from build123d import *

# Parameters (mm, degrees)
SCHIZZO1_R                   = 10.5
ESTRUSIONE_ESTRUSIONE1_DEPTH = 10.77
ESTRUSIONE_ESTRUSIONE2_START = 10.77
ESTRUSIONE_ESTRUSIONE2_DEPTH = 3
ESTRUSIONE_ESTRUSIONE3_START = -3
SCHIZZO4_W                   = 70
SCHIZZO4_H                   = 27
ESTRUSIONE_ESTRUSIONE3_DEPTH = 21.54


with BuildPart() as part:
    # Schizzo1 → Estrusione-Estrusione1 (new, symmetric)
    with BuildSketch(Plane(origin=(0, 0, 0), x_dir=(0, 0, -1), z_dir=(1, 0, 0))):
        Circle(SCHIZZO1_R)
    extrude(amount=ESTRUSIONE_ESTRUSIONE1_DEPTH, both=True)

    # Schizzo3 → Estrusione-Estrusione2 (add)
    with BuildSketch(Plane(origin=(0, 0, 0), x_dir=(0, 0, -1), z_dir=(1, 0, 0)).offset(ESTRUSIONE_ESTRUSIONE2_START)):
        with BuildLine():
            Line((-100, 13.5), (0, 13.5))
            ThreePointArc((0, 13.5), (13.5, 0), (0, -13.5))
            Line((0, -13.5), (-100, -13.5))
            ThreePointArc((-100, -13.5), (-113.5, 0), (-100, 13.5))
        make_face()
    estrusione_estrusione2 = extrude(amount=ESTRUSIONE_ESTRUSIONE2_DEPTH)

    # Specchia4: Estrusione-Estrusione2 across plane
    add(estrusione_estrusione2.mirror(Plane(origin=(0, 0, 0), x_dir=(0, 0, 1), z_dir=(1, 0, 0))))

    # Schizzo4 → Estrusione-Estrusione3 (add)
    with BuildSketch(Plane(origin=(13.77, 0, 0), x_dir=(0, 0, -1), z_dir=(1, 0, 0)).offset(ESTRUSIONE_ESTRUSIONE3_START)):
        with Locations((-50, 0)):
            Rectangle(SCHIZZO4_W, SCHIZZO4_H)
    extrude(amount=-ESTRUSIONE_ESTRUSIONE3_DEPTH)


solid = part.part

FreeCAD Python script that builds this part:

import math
import FreeCAD as App
import Part
import Sketcher
Q = App.Units.Quantity

doc = App.newDocument("Part")
body = doc.addObject("PartDesign::Body", "Body")

# Sketch on YZ plane
sketch1 = body.newObject("Sketcher::SketchObject", "Sketch")
sketch1.AttachmentSupport = (doc.getObject("YZ_Plane"), [""])
sketch1.MapMode = "FlatFace"
sketch1.addGeometry(Part.Circle(App.Vector(0, 0, 0), App.Vector(0, 0, 1), 10.5), False)
sketch1.addConstraint(Sketcher.Constraint("Coincident", 0, 3, -1, 1))
sketch1.addConstraint(Sketcher.Constraint("Diameter", 0, Q("21 mm")))
pad1 = body.newObject("PartDesign::Pad", "Pad")
pad1.Profile = sketch1
pad1.Length = 21.54
pad1.Midplane = True

# Sketch on YZ plane
sketch2 = body.newObject("Sketcher::SketchObject", "Sketch001")
sketch2.AttachmentSupport = (doc.getObject("YZ_Plane"), [""])
sketch2.MapMode = "FlatFace"
sketch2.AttachmentOffset = App.Placement(App.Vector(0, 0, 10.77), App.Rotation())
sketch2.addGeometry(Part.LineSegment(App.Vector(13.5, 0, 0), App.Vector(13.5, 100, 0)), False)
sketch2.addGeometry(Part.ArcOfCircle(Part.Circle(App.Vector(0, 100, 0), App.Vector(0, 0, 1), 13.5), math.radians(0), math.radians(180)), False)
sketch2.addGeometry(Part.LineSegment(App.Vector(-13.5, 100, 0), App.Vector(-13.5, 0, 0)), False)
sketch2.addGeometry(Part.ArcOfCircle(Part.Circle(App.Vector(0, 0, 0), App.Vector(0, 0, 1), 13.5), math.radians(180), math.radians(360)), False)
sketch2.addConstraint(Sketcher.Constraint("Tangent", 0, 2, 1, 1))
sketch2.addConstraint(Sketcher.Constraint("Tangent", 1, 2, 2, 1))
sketch2.addConstraint(Sketcher.Constraint("Tangent", 2, 2, 3, 1))
sketch2.addConstraint(Sketcher.Constraint("Tangent", 3, 2, 0, 1))
sketch2.addConstraint(Sketcher.Constraint("Vertical", 0))
sketch2.addConstraint(Sketcher.Constraint("Vertical", 2))
sketch2.addConstraint(Sketcher.Constraint("Coincident", 3, 3, -1, 1))
sketch2.addConstraint(Sketcher.Constraint("Radius", 1, Q("13.5 mm")))
sketch2.addConstraint(Sketcher.Constraint("DistanceY", 0, 1, 0, 2, Q("100 mm")))
pad2 = body.newObject("PartDesign::Pad", "Pad001")
pad2.Profile = sketch2
pad2.Length = 3
doc.recompute()

mirrored = body.newObject("PartDesign::Mirrored", "Mirrored")
mirrored.Originals = [pad2]
mirrored.MirrorPlane = (doc.getObject("YZ_Plane"), [""])
body.Tip = mirrored

# Sketch on YZ plane
sketch3 = body.newObject("Sketcher::SketchObject", "Sketch002")
sketch3.AttachmentSupport = (doc.getObject("YZ_Plane"), [""])
sketch3.MapMode = "FlatFace"
sketch3.AttachmentOffset = App.Placement(App.Vector(0, 0, 10.77), App.Rotation())
sketch3.addGeometry(Part.LineSegment(App.Vector(13.5, 85, 0), App.Vector(-13.5, 85, 0)), False)
sketch3.addGeometry(Part.LineSegment(App.Vector(-13.5, 85, 0), App.Vector(-13.5, 15, 0)), False)
sketch3.addGeometry(Part.LineSegment(App.Vector(-13.5, 15, 0), App.Vector(13.5, 15, 0)), False)
sketch3.addGeometry(Part.LineSegment(App.Vector(13.5, 15, 0), App.Vector(13.5, 85, 0)), False)
sketch3.addConstraint(Sketcher.Constraint("Coincident", 0, 2, 1, 1))
sketch3.addConstraint(Sketcher.Constraint("Coincident", 1, 2, 2, 1))
sketch3.addConstraint(Sketcher.Constraint("Coincident", 2, 2, 3, 1))
sketch3.addConstraint(Sketcher.Constraint("Coincident", 3, 2, 0, 1))
sketch3.addConstraint(Sketcher.Constraint("Horizontal", 0))
sketch3.addConstraint(Sketcher.Constraint("Vertical", 1))
sketch3.addConstraint(Sketcher.Constraint("Horizontal", 2))
sketch3.addConstraint(Sketcher.Constraint("Vertical", 3))
sketch3.addConstraint(Sketcher.Constraint("DistanceX", 0, 2, 0, 1, Q("27 mm")))
sketch3.addConstraint(Sketcher.Constraint("DistanceY", 1, 2, 1, 1, Q("70 mm")))
sketch3.addConstraint(Sketcher.Constraint("DistanceY", -1, 1, 0, 2, Q("85 mm")))
sketch3.addConstraint(Sketcher.Constraint("DistanceX", 0, 2, -1, 1, Q("13.5 mm")))
pad3 = body.newObject("PartDesign::Pad", "Pad002")
pad3.Profile = sketch3
pad3.Length = 21.54
pad3.Reversed = True

doc.recompute()
